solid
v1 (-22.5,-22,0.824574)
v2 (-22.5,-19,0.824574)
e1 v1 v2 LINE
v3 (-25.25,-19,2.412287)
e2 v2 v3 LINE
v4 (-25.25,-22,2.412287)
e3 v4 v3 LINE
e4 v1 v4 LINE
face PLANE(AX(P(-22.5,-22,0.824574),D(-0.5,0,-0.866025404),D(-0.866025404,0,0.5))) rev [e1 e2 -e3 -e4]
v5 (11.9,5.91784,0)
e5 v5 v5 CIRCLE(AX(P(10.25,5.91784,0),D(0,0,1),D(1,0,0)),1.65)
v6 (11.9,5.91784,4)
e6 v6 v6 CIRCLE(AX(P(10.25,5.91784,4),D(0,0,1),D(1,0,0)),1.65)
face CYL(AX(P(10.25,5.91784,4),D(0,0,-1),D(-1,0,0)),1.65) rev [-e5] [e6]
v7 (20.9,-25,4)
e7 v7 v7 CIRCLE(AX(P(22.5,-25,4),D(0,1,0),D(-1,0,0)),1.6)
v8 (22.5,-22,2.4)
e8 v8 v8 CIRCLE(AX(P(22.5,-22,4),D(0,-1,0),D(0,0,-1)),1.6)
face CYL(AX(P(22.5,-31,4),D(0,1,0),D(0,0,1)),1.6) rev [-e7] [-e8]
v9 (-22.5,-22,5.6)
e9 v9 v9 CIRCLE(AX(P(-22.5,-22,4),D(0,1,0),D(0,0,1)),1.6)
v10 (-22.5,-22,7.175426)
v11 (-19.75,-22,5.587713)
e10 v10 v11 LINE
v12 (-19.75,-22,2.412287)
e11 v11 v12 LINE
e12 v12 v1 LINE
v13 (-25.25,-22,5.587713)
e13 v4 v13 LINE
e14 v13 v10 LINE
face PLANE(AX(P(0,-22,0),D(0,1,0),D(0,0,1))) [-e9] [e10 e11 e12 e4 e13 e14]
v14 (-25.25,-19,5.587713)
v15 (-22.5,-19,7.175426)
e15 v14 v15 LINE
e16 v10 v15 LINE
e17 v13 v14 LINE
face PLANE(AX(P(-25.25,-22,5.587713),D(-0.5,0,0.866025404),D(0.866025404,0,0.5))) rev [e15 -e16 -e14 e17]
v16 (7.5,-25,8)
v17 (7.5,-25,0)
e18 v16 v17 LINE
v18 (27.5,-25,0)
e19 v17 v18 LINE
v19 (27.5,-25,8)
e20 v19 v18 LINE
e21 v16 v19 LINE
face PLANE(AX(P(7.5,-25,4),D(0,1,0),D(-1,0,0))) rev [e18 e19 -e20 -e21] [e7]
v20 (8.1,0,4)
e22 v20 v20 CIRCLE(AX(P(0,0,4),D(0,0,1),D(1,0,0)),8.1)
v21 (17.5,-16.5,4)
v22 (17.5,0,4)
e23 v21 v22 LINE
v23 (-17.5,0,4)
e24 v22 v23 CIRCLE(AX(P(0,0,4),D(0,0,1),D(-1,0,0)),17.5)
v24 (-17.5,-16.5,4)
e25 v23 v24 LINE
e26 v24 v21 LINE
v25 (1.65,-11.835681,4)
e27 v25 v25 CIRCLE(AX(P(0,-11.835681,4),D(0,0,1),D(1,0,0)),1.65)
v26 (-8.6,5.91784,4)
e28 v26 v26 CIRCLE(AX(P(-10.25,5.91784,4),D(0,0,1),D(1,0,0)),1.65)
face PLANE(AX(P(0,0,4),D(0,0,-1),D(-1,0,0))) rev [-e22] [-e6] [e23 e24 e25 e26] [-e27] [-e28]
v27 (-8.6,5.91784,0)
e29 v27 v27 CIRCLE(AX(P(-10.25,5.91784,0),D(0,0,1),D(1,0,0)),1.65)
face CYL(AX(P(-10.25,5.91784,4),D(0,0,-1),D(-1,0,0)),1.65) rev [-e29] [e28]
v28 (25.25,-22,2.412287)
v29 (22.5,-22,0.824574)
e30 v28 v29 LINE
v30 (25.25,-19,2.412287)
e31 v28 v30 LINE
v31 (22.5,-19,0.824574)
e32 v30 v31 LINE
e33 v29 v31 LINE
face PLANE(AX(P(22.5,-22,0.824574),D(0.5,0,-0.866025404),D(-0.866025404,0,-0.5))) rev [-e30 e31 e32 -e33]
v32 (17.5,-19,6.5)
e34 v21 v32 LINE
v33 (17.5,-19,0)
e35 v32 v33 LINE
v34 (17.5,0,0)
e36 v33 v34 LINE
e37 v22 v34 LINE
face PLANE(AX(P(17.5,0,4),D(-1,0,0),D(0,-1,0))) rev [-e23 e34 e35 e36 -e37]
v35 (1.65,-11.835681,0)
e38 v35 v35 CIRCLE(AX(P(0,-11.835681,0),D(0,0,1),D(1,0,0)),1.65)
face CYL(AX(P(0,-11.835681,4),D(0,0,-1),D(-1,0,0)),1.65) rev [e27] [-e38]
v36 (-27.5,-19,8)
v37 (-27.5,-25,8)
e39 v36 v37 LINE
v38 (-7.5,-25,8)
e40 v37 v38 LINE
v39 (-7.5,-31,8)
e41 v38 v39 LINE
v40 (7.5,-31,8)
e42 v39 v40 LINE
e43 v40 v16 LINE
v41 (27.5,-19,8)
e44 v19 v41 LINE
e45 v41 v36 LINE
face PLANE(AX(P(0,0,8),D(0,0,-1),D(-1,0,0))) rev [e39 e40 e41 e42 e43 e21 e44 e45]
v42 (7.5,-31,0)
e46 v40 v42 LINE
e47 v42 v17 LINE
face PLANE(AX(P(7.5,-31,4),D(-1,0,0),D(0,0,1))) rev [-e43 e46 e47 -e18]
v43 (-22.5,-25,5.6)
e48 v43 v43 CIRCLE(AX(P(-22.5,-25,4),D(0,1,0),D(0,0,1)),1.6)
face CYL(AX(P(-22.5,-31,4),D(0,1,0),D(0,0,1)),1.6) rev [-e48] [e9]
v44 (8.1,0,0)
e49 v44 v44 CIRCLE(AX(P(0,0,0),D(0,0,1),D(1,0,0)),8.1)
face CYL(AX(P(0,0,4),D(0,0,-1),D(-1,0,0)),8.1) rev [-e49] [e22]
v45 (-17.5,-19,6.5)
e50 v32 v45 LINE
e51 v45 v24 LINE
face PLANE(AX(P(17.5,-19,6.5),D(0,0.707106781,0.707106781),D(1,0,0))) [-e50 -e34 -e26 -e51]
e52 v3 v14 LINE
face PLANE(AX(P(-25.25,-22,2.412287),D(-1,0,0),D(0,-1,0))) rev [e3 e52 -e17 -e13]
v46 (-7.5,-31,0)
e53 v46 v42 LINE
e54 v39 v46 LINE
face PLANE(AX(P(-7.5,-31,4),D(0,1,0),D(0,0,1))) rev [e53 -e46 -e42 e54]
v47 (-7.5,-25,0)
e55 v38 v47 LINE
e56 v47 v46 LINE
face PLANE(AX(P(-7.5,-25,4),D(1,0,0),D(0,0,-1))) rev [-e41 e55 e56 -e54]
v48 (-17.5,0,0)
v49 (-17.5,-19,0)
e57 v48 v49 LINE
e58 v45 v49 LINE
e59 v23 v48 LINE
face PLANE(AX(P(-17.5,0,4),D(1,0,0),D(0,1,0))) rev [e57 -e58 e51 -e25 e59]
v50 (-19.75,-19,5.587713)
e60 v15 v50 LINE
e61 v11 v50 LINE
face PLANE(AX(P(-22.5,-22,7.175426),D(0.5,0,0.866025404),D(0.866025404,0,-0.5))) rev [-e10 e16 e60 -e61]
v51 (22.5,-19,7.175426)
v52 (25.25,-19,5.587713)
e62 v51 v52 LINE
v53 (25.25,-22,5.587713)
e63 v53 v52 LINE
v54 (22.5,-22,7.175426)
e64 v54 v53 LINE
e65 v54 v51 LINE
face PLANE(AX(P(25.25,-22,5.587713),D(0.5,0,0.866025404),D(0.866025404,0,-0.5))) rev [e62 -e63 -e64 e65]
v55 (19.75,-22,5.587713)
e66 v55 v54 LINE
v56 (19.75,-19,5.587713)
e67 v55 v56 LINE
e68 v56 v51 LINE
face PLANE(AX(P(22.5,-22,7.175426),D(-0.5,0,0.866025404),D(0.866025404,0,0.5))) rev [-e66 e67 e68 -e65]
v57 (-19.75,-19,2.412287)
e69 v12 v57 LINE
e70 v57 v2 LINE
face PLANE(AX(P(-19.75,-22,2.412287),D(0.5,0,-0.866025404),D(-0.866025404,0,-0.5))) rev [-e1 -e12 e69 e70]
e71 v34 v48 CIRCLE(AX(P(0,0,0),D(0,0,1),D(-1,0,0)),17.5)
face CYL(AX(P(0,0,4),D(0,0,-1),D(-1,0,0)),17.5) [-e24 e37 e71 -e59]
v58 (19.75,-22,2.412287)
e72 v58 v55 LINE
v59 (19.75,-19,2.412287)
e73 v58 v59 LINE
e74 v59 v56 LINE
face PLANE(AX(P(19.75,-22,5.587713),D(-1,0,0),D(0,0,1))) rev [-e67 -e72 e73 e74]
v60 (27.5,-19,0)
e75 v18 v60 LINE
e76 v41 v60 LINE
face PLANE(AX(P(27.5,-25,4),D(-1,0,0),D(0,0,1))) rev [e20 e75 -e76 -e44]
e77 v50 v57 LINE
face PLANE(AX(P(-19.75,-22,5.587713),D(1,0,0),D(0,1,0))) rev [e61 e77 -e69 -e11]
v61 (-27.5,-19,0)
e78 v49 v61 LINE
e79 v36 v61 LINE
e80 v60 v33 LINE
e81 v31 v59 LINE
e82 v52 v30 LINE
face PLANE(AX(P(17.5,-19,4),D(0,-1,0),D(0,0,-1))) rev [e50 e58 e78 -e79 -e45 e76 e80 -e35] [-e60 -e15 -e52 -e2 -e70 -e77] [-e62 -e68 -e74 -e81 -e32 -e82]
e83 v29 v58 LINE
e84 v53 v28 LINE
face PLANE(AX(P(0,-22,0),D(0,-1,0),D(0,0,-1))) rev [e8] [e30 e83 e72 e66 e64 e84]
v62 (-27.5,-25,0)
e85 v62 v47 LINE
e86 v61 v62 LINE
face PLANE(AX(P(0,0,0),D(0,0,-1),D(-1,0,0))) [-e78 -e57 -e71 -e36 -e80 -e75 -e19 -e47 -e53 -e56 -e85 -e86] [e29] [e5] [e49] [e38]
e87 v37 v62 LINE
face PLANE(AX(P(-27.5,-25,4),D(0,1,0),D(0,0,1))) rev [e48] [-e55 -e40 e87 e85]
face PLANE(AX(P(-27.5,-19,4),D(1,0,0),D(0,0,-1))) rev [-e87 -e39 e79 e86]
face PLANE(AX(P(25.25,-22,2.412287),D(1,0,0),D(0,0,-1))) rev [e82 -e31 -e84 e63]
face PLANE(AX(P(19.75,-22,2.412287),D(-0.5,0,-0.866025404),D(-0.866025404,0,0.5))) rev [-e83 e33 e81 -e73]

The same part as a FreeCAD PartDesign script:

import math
import FreeCAD as App
import Part
import Sketcher
Q = App.Units.Quantity


def edges_at(feature, points):
    """Names of the edges that pass closest to the given points."""
    edges = feature.Shape.Edges
    near = lambda p: min(range(len(edges)), key=lambda i: edges[i].distToShape(Part.Vertex(*p))[0])
    return sorted({f"Edge{near(p) + 1}" for p in points})

doc = App.newDocument("Part")
body = doc.addObject("PartDesign::Body", "Body")

sketch1 = body.newObject("Sketcher::SketchObject", "Sketch")
sketch1.AttachmentSupport = (doc.getObject("XY_Plane"), [""])
sketch1.MapMode = "FlatFace"
sketch1.addGeometry([
    Part.LineSegment(App.Vector(-27.5, -19, 0), App.Vector(-27.5, -25, 0)),
    Part.LineSegment(App.Vector(-27.5, -25, 0), App.Vector(-7.5, -25, 0)),
    Part.LineSegment(App.Vector(-7.5, -25, 0), App.Vector(-7.5, -31, 0)),
    Part.LineSegment(App.Vector(-7.5, -31, 0), App.Vector(7.5, -31, 0)),
    Part.LineSegment(App.Vector(7.5, -31, 0), App.Vector(7.5, -25, 0)),
    Part.LineSegment(App.Vector(7.5, -25, 0), App.Vector(27.5, -25, 0)),
    Part.LineSegment(App.Vector(27.5, -25, 0), App.Vector(27.5, -19, 0)),
    Part.LineSegment(App.Vector(27.5, -19, 0), App.Vector(17.5, -19, 0)),
    Part.LineSegment(App.Vector(17.5, -19, 0), App.Vector(17.5, 0, 0)),
    Part.ArcOfCircle(Part.Circle(App.Vector(0, 0, 0), App.Vector(0, 0, 1), 17.5), math.radians(0), math.radians(180)),
    Part.LineSegment(App.Vector(-17.5, 0, 0), App.Vector(-17.5, -19, 0)),
    Part.LineSegment(App.Vector(-17.5, -19, 0), App.Vector(-27.5, -19, 0)),
    Part.Circle(App.Vector(0, -11.835681, 0), App.Vector(0, 0, 1), 1.65),
    Part.Circle(App.Vector(-10.25, 5.91784, 0), App.Vector(0, 0, 1), 1.65),
    Part.Circle(App.Vector(0, 0, 0), App.Vector(0, 0, 1), 8.1),
    Part.Circle(App.Vector(10.25, 5.91784, 0), App.Vector(0, 0, 1), 1.65),
], False)
sketch1.addConstraint([
    Sketcher.Constraint("Coincident", 0, 2, 1, 1),
    Sketcher.Constraint("Coincident", 1, 2, 2, 1),
    Sketcher.Constraint("Coincident", 2, 2, 3, 1),
    Sketcher.Constraint("Coincident", 3, 2, 4, 1),
    Sketcher.Constraint("Coincident", 4, 2, 5, 1),
    Sketcher.Constraint("Coincident", 5, 2, 6, 1),
    Sketcher.Constraint("Coincident", 6, 2, 7, 1),
    Sketcher.Constraint("Coincident", 7, 2, 8, 1),
    Sketcher.Constraint("Tangent", 8, 2, 9, 1),
    Sketcher.Constraint("Tangent", 9, 2, 10, 1),
    Sketcher.Constraint("Coincident", 10, 2, 11, 1),
    Sketcher.Constraint("Coincident", 11, 2, 0, 1),
    Sketcher.Constraint("Vertical", 0),
    Sketcher.Constraint("Horizontal", 1),
    Sketcher.Constraint("Vertical", 2),
    Sketcher.Constraint("Horizontal", 3),
    Sketcher.Constraint("Vertical", 4),
    Sketcher.Constraint("Horizontal", 5),
    Sketcher.Constraint("Vertical", 6),
    Sketcher.Constraint("Horizontal", 7),
    Sketcher.Constraint("Vertical", 8),
    Sketcher.Constraint("Vertical", 10),
    Sketcher.Constraint("Horizontal", 11),
    Sketcher.Constraint("Coincident", 9, 3, -1, 1),
    Sketcher.Constraint("Coincident", 14, 3, -1, 1),
    Sketcher.Constraint("Equal", 12, 13),
    Sketcher.Constraint("Equal", 13, 15),
    Sketcher.Constraint("Symmetric", 13, 3, 15, 3, -2),
    Sketcher.Constraint("Symmetric", 1, 2, 4, 2, -2),
    Sketcher.Constraint("Symmetric", 6, 2, 11, 2, -2),
    Sketcher.Constraint("PointOnObject", 12, 3, -2),
    Sketcher.Constraint("Equal", 0, 2),
    Sketcher.Constraint("Diameter", 12, 3.3),
    Sketcher.Constraint("Diameter", 14, 16.2),
    Sketcher.Constraint("Radius", 9, 17.5),
    Sketcher.Constraint("DistanceX", 1, 1, 1, 2, 20.0),
    Sketcher.Constraint("DistanceX", 3, 1, 3, 2, 15.0),
    Sketcher.Constraint("DistanceY", 0, 2, 0, 1, 6.0),
    Sketcher.Constraint("DistanceY", 8, 1, 8, 2, 19.0),
    Sketcher.Constraint("DistanceX", 13, 3, 15, 3, 20.5),
    Sketcher.Constraint("DistanceY", 12, 3, -1, 1, 11.835681),
    Sketcher.Constraint("DistanceY", -1, 1, 13, 3, 5.91784),
])
pad1 = body.newObject("PartDesign::Pad", "Pad")
pad1.Profile = sketch1
pad1.Length = 4

sketch2 = body.newObject("Sketcher::SketchObject", "Sketch001")
sketch2.AttachmentSupport = (doc.getObject("XY_Plane"), [""])
sketch2.MapMode = "FlatFace"
sketch2.AttachmentOffset = App.Placement(App.Vector(0, 0, 4), App.Rotation())
sketch2.addGeometry([
    Part.LineSegment(App.Vector(-27.5, -25, 0), App.Vector(-7.5, -25, 0)),
    Part.LineSegment(App.Vector(-7.5, -25, 0), App.Vector(-7.5, -31, 0)),
    Part.LineSegment(App.Vector(-7.5, -31, 0), App.Vector(7.5, -31, 0)),
    Part.LineSegment(App.Vector(7.5, -31, 0), App.Vector(7.5, -25, 0)),
    Part.LineSegment(App.Vector(7.5, -25, 0), App.Vector(27.5, -25, 0)),
    Part.LineSegment(App.Vector(27.5, -25, 0), App.Vector(27.5, -19, 0)),
    Part.LineSegment(App.Vector(27.5, -19, 0), App.Vector(-27.5, -19, 0)),
    Part.LineSegment(App.Vector(-27.5, -19, 0), App.Vector(-27.5, -25, 0)),
], False)
sketch2.addConstraint([
    Sketcher.Constraint("Coincident", 0, 2, 1, 1),
    Sketcher.Constraint("Coincident", 1, 2, 2, 1),
    Sketcher.Constraint("Coincident", 2, 2, 3, 1),
    Sketcher.Constraint("Coincident", 3, 2, 4, 1),
    Sketcher.Constraint("Coincident", 4, 2, 5, 1),
    Sketcher.Constraint("Coincident", 5, 2, 6, 1),
    Sketcher.Constraint("Coincident", 6, 2, 7, 1),
    Sketcher.Constraint("Coincident", 7, 2, 0, 1),
    Sketcher.Constraint("Horizontal", 0),
    Sketcher.Constraint("Vertical", 1),
    Sketcher.Constraint("Horizontal", 2),
    Sketcher.Constraint("Vertical", 3),
    Sketcher.Constraint("Horizontal", 4),
    Sketcher.Constraint("Vertical", 5),
    Sketcher.Constraint("Horizontal", 6),
    Sketcher.Constraint("Vertical", 7),
    Sketcher.Constraint("Symmetric", 0, 2, 3, 2, -2),
    Sketcher.Constraint("Equal", 0, 4),
    Sketcher.Constraint("Equal", 3, 5),
    Sketcher.Constraint("DistanceX", 0, 1, 0, 2, 20.0),
    Sketcher.Constraint("DistanceX", 2, 1, 2, 2, 15.0),
    Sketcher.Constraint("DistanceY", 1, 2, 1, 1, 6.0),
    Sketcher.Constraint("DistanceY", 0, 2, -1, 1, 25.0),
])
pad2 = body.newObject("PartDesign::Pad", "Pad001")
pad2.Profile = sketch2
pad2.Length = 4
doc.recompute()

chamfer = body.newObject("PartDesign::Chamfer", "Chamfer")
chamfer.Base = (pad2, edges_at(pad2, [(0, -19, 4)]))
chamfer.Size = 2.5

sketch3 = body.newObject("Sketcher::SketchObject", "Sketch002")
sketch3.AttachmentSupport = (doc.getObject("XZ_Plane"), [""])
sketch3.MapMode = "FlatFace"
sketch3.AttachmentOffset = App.Placement(App.Vector(0, 0, 19), App.Rotation())
sketch3.addGeometry([
    Part.LineSegment(App.Vector(22.5, 0.824574, 0), App.Vector(19.75, 2.412287, 0)),
    Part.LineSegment(App.Vector(19.75, 2.412287, 0), App.Vector(19.75, 5.587713, 0)),
    Part.LineSegment(App.Vector(19.75, 5.587713, 0), App.Vector(22.5, 7.175426, 0)),
    Part.LineSegment(App.Vector(22.5, 7.175426, 0), App.Vector(25.25, 5.587713, 0)),
    Part.LineSegment(App.Vector(25.25, 5.587713, 0), App.Vector(25.25, 2.412287, 0)),
    Part.LineSegment(App.Vector(25.25, 2.412287, 0), App.Vector(22.5, 0.824574, 0)),
    Part.LineSegment(App.Vector(-22.5, 0.824574, 0), App.Vector(-25.25, 2.412287, 0)),
    Part.LineSegment(App.Vector(-25.25, 2.412287, 0), App.Vector(-25.25, 5.587713, 0)),
    Part.LineSegment(App.Vector(-25.25, 5.587713, 0), App.Vector(-22.5, 7.175426, 0)),
    Part.LineSegment(App.Vector(-22.5, 7.175426, 0), App.Vector(-19.75, 5.587713, 0)),
    Part.LineSegment(App.Vector(-19.75, 5.587713, 0), App.Vector(-19.75, 2.412287, 0)),
    Part.LineSegment(App.Vector(-19.75, 2.412287, 0), App.Vector(-22.5, 0.824574, 0)),
], False)
sketch3.addConstraint([
    Sketcher.Constraint("Coincident", 0, 2, 1, 1),
    Sketcher.Constraint("Coincident", 1, 2, 2, 1),
    Sketcher.Constraint("Coincident", 2, 2, 3, 1),
    Sketcher.Constraint("Coincident", 3, 2, 4, 1),
    Sketcher.Constraint("Coincident", 4, 2, 5, 1),
    Sketcher.Constraint("Coincident", 5, 2, 0, 1),
    Sketcher.Constraint("Coincident", 6, 2, 7, 1),
    Sketcher.Constraint("Coincident", 7, 2, 8, 1),
    Sketcher.Constraint("Coincident", 8, 2, 9, 1),
    Sketcher.Constraint("Coincident", 9, 2, 10, 1),
    Sketcher.Constraint("Coincident", 10, 2, 11, 1),
    Sketcher.Constraint("Coincident", 11, 2, 6, 1),
    Sketcher.Constraint("Vertical", 1),
    Sketcher.Constraint("Vertical", 4),
    Sketcher.Constraint("Vertical", 7),
    Sketcher.Constraint("Vertical", 10),
    Sketcher.Constraint("Symmetric", 4, 2, 6, 2, -2),
    Sketcher.Constraint("Symmetric", 2, 2, 8, 2, -2),
    Sketcher.Constraint("Symmetric", 1, 2, 9, 2, -2),
    Sketcher.Constraint("Symmetric", 5, 2, 11, 2, -2),
    Sketcher.Constraint("Parallel", 0, 3),
    Sketcher.Constraint("Parallel", 2, 5),
    Sketcher.Constraint("Parallel", 3, 6),
    Sketcher.Constraint("Parallel", 5, 8),
    Sketcher.Constraint("Parallel", 8, 11),
    Sketcher.Constraint("Horizontal", 1, 2, 3, 2),
    Sketcher.Constraint("Horizontal", 0, 2, 4, 2),
    Sketcher.Constraint("Angle", 0, Q("150 deg")),
    Sketcher.Constraint("DistanceX", 6, 2, 0, 2, 45.0),
    Sketcher.Constraint("DistanceX", 1, 2, 3, 2, 5.5),
    Sketcher.Constraint("DistanceY", 1, 1, 1, 2, 3.175426),
    Sketcher.Constraint("DistanceY", -1, 1, 0, 2, 2.412287),
])
pocket1 = body.newObject("PartDesign::Pocket", "Pocket")
pocket1.Profile = sketch3
pocket1.Length = 3
pocket1.Reversed = True

sketch4 = body.newObject("Sketcher::SketchObject", "Sketch003")
sketch4.AttachmentSupport = (doc.getObject("XZ_Plane"), [""])
sketch4.MapMode = "FlatFace"
sketch4.AttachmentOffset = App.Placement(App.Vector(0, 0, 19), App.Rotation())
sketch4.addGeometry([
    Part.Circle(App.Vector(-22.5, 4, 0), App.Vector(0, 0, 1), 1.6),
    Part.Circle(App.Vector(22.5, 4, 0), App.Vector(0, 0, 1), 1.6),
], False)
sketch4.addConstraint([
    Sketcher.Constraint("Equal", 0, 1),
    Sketcher.Constraint("Symmetric", 0, 3, 1, 3, -2),
    Sketcher.Constraint("Diameter", 0, 3.2),
    Sketcher.Constraint("DistanceY", -1, 1, 0, 3, 4.0),
    Sketcher.Constraint("DistanceX", 0, 3, 1, 3, 45.0),
])
pocket2 = body.newObject("PartDesign::Pocket", "Pocket001")
pocket2.Profile = sketch4
pocket2.Type = "ThroughAll"
pocket2.Reversed = True

doc.recompute()
